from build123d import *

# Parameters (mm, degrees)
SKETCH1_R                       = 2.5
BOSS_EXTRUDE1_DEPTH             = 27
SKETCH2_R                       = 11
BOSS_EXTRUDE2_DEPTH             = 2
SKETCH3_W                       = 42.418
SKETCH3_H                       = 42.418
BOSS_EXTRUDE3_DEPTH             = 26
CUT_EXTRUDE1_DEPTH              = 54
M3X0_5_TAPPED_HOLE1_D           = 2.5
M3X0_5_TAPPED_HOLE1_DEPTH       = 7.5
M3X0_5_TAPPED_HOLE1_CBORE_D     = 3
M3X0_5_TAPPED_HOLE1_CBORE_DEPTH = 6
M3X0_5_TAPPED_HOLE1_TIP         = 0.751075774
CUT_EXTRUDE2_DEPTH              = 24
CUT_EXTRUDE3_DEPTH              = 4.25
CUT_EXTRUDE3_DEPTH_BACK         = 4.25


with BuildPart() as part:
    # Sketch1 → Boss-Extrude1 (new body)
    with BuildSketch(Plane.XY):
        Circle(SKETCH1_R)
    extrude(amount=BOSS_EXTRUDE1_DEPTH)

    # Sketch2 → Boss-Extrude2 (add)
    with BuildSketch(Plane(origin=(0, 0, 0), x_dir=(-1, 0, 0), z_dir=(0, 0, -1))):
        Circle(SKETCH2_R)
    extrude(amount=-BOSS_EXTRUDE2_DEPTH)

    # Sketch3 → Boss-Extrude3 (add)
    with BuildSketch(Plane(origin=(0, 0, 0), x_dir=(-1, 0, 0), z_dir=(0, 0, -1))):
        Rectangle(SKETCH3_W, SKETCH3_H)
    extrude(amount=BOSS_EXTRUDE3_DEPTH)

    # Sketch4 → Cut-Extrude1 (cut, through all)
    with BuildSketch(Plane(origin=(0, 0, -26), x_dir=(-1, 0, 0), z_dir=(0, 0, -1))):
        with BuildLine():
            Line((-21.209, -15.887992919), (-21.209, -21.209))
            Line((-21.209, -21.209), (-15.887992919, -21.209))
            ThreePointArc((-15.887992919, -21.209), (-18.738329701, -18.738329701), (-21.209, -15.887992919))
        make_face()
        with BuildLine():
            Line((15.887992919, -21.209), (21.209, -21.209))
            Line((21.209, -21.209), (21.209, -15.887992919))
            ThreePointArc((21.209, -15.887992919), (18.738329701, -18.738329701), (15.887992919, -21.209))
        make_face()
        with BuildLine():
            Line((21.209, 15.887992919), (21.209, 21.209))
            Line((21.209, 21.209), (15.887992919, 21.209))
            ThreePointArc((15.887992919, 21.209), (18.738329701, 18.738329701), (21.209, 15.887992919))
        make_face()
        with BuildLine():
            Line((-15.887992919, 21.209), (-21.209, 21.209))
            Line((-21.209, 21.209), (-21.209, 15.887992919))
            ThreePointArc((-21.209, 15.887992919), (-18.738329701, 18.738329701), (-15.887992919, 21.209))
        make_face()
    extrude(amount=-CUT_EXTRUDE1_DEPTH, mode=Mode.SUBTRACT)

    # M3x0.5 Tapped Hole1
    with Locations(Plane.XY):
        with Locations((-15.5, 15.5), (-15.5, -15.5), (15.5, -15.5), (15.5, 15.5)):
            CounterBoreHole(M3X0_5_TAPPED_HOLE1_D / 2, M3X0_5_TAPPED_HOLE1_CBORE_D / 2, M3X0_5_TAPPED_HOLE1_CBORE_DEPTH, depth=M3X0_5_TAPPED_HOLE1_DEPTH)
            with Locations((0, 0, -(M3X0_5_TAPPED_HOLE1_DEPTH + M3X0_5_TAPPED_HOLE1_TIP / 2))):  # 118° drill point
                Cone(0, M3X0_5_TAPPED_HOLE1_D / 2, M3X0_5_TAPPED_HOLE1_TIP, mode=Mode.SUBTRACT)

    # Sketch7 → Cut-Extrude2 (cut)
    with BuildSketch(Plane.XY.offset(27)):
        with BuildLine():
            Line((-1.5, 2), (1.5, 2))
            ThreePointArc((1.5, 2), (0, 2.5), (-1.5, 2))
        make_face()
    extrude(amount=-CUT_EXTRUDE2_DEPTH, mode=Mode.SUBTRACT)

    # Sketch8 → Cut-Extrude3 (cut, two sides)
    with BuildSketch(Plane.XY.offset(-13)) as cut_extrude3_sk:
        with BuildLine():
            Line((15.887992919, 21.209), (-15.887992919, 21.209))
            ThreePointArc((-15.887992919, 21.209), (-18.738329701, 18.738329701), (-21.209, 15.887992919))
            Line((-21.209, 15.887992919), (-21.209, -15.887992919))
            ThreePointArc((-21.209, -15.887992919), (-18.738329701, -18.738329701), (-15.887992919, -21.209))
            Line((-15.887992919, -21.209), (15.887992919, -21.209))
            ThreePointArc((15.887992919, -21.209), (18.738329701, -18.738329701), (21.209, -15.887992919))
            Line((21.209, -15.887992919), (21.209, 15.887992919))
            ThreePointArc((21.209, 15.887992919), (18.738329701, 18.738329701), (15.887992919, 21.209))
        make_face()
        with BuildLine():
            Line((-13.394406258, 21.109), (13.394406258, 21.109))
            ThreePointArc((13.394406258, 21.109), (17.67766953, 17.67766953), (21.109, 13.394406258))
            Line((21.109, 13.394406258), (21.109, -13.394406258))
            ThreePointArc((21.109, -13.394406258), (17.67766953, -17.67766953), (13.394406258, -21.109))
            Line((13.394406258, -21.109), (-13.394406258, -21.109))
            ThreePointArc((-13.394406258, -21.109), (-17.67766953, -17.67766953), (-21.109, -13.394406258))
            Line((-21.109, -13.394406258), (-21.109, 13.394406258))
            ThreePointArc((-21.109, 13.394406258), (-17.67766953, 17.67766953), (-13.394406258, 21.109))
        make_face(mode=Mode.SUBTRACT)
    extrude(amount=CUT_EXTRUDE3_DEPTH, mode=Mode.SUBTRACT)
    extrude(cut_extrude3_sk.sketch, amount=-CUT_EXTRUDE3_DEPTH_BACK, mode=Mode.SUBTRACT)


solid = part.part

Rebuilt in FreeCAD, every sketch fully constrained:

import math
import FreeCAD as App
import Part
import Sketcher

V = App.Vector


def add_polygon(sketch, points):
    """Adds a closed chain of lines whose ends are joined by coincident constraints."""
    first, n = sketch.GeometryCount, len(points)
    for a, b in zip(points, points[1:] + points[:1]):
        sketch.addGeometry(Part.LineSegment(App.Vector(*a, 0), App.Vector(*b, 0)), False)
    for i in range(n):
        sketch.addConstraint(Sketcher.Constraint("Coincident", first + i, 2, first + (i + 1) % n, 1))

doc = App.newDocument("Part")
body = doc.addObject("PartDesign::Body", "Body")

sketch1 = body.newObject("Sketcher::SketchObject", "Sketch")
sketch1.AttachmentSupport = (doc.getObject("XY_Plane"), [""])
sketch1.MapMode = "FlatFace"
sketch1.addGeometry(Part.Circle(V(0, 0, 0), V(0, 0, 1), 2.5), False)
sketch1.addConstraint(Sketcher.Constraint("Coincident", 0, 3, -1, 1))
sketch1.addConstraint(Sketcher.Constraint("Diameter", 0, 5.0))
pad1 = body.newObject("PartDesign::Pad", "Pad")
pad1.Profile = sketch1
pad1.Length = 27

sketch2 = body.newObject("Sketcher::SketchObject", "Sketch001")
sketch2.AttachmentSupport = (doc.getObject("XY_Plane"), [""])
sketch2.MapMode = "FlatFace"
sketch2.addGeometry(Part.Circle(V(0, 0, 0), V(0, 0, 1), 11), False)
sketch2.addConstraint(Sketcher.Constraint("Coincident", 0, 3, -1, 1))
sketch2.addConstraint(Sketcher.Constraint("Diameter", 0, 22.0))
pad2 = body.newObject("PartDesign::Pad", "Pad001")
pad2.Profile = sketch2
pad2.Length = 2

sketch3 = body.newObject("Sketcher::SketchObject", "Sketch002")
sketch3.AttachmentSupport = (doc.getObject("XY_Plane"), [""])
sketch3.MapMode = "FlatFace"
add_polygon(sketch3, [(21, 21), (21, -21), (-21, -21), (-21, 21)])
sketch3.addConstraint(Sketcher.Constraint("Vertical", 0))
sketch3.addConstraint(Sketcher.Constraint("Horizontal", 1))
sketch3.addConstraint(Sketcher.Constraint("Vertical", 2))
sketch3.addConstraint(Sketcher.Constraint("Horizontal", 3))
sketch3.addConstraint(Sketcher.Constraint("Symmetric", 0, 2, 2, 2, -1, 1))
sketch3.addConstraint(Sketcher.Constraint("Equal", 3, 0))
sketch3.addConstraint(Sketcher.Constraint("DistanceX", 1, 2, 1, 1, 42.418))
pad3 = body.newObject("PartDesign::Pad", "Pad002")
pad3.Profile = sketch3
pad3.Length = 26
pad3.Reversed = True

sketch4 = body.newObject("Sketcher::SketchObject", "Sketch003")
sketch4.AttachmentSupport = (doc.getObject("XY_Plane"), [""])
sketch4.MapMode = "FlatFace"
sketch4.AttachmentOffset = App.Placement(V(0, 0, -26), App.Rotation())
sketch4.addGeometry(Part.LineSegment(V(21, -16, 0), V(21, -21, 0)), False)
sketch4.addGeometry(Part.LineSegment(V(21, -21, 0), V(16, -21, 0)), False)
sketch4.addGeometry(Part.ArcOfCircle(Part.Circle(V(0, 0, 0), V(0, 0, 1), 27), math.radians(-53.16), math.radians(-36.84)), False)
sketch4.addGeometry(Part.LineSegment(V(-16, -21, 0), V(-21, -21, 0)), False)
sketch4.addGeometry(Part.LineSegment(V(-21, -21, 0), V(-21, -16, 0)), False)
sketch4.addGeometry(Part.ArcOfCircle(Part.Circle(V(0, 0, 0), V(0, 0, 1), 27), math.radians(-143.16), math.radians(-126.84)), False)
sketch4.addGeometry(Part.LineSegment(V(-21, 16, 0), V(-21, 21, 0)), False)
sketch4.addGeometry(Part.LineSegment(V(-21, 21, 0), V(-16, 21, 0)), False)
sketch4.addGeometry(Part.ArcOfCircle(Part.Circle(V(0, 0, 0), V(0, 0, 1), 27), math.radians(126.84), math.radians(143.16)), False)
sketch4.addGeometry(Part.LineSegment(V(16, 21, 0), V(21, 21, 0)), False)
sketch4.addGeometry(Part.LineSegment(V(21, 21, 0), V(21, 16, 0)), False)
sketch4.addGeometry(Part.ArcOfCircle(Part.Circle(V(0, 0, 0), V(0, 0, 1), 27), math.radians(36.84), math.radians(53.16)), False)
sketch4.addConstraint(Sketcher.Constraint("Coincident", 0, 2, 1, 1))
sketch4.addConstraint(Sketcher.Constraint("Coincident", 1, 2, 2, 1))
sketch4.addConstraint(Sketcher.Constraint("Coincident", 2, 2, 0, 1))
sketch4.addConstraint(Sketcher.Constraint("Coincident", 3, 2, 4, 1))
sketch4.addConstraint(Sketcher.Constraint("Coincident", 4, 2, 5, 1))
sketch4.addConstraint(Sketcher.Constraint("Coincident", 5, 2, 3, 1))
sketch4.addConstraint(Sketcher.Constraint("Coincident", 6, 2, 7, 1))
sketch4.addConstraint(Sketcher.Constraint("Coincident", 7, 2, 8, 1))
sketch4.addConstraint(Sketcher.Constraint("Coincident", 8, 2, 6, 1))
sketch4.addConstraint(Sketcher.Constraint("Coincident", 9, 2, 10, 1))
sketch4.addConstraint(Sketcher.Constraint("Coincident", 10, 2, 11, 1))
sketch4.addConstraint(Sketcher.Constraint("Coincident", 11, 2, 9, 1))
sketch4.addConstraint(Sketcher.Constraint("Vertical", 0))
sketch4.addConstraint(Sketcher.Constraint("Horizontal", 1))
sketch4.addConstraint(Sketcher.Constraint("Horizontal", 3))
sketch4.addConstraint(Sketcher.Constraint("Vertical", 4))
sketch4.addConstraint(Sketcher.Constraint("Vertical", 6))
sketch4.addConstraint(Sketcher.Constraint("Horizontal", 7))
sketch4.addConstraint(Sketcher.Constraint("Horizontal", 9))
sketch4.addConstraint(Sketcher.Constraint("Vertical", 10))
sketch4.addConstraint(Sketcher.Constraint("Coincident", 2, 3, -1, 1))
sketch4.addConstraint(Sketcher.Constraint("Coincident", 5, 3, -1, 1))
sketch4.addConstraint(Sketcher.Constraint("Coincident", 8, 3, -1, 1))
sketch4.addConstraint(Sketcher.Constraint("Coincident", 11, 3, -1, 1))
sketch4.addConstraint(Sketcher.Constraint("Equal", 2, 5))
sketch4.addConstraint(Sketcher.Constraint("Equal", 5, 8))
sketch4.addConstraint(Sketcher.Constraint("Equal", 8, 11))
sketch4.addConstraint(Sketcher.Constraint("Symmetric", 0, 2, 6, 2, -1, 1))
sketch4.addConstraint(Sketcher.Constraint("Symmetric", 3, 2, 9, 2, -1, 1))
sketch4.addConstraint(Sketcher.Constraint("Symmetric", 0, 2, 3, 2, -2))
sketch4.addConstraint(Sketcher.Constraint("Equal", 9, 0))
sketch4.addConstraint(Sketcher.Constraint("Radius", 2, 26.5))
sketch4.addConstraint(Sketcher.Constraint("DistanceX", -1, 1, 0, 2, 21.209))
pocket1 = body.newObject("PartDesign::Pocket", "Pocket")
pocket1.Profile = sketch4
pocket1.Type = "ThroughAll"
pocket1.Reversed = True

sketch5 = body.newObject("Sketcher::SketchObject", "Sketch004")
sketch5.AttachmentSupport = (doc.getObject("XY_Plane"), [""])
sketch5.MapMode = "FlatFace"
sketch5.addGeometry(Part.Circle(V(-15.5, 15.5, 0), V(0, 0, 1), 1.2), False)
sketch5.addGeometry(Part.Circle(V(-15.5, -15.5, 0), V(0, 0, 1), 1.2), False)
sketch5.addGeometry(Part.Circle(V(15.5, -15.5, 0), V(0, 0, 1), 1.2), False)
sketch5.addGeometry(Part.Circle(V(15.5, 15.5, 0), V(0, 0, 1), 1.2), False)
sketch5.addConstraint(Sketcher.Constraint("Equal", 0, 1))
sketch5.addConstraint(Sketcher.Constraint("Equal", 1, 2))
sketch5.addConstraint(Sketcher.Constraint("Equal", 2, 3))
sketch5.addConstraint(Sketcher.Constraint("Symmetric", 0, 3, 2, 3, -1, 1))
sketch5.addConstraint(Sketcher.Constraint("Symmetric", 1, 3, 3, 3, -1, 1))
sketch5.addConstraint(Sketcher.Constraint("Symmetric", 1, 3, 2, 3, -2))
sketch5.addConstraint(Sketcher.Constraint("Diameter", 0, 2.5))
sketch5.addConstraint(Sketcher.Constraint("DistanceY", 1, 3, 0, 3, 31.0))
sketch5.addConstraint(Sketcher.Constraint("DistanceX", 1, 3, 2, 3, 31.0))
doc.recompute()
hole = body.newObject("PartDesign::Hole", "Hole")
hole.Profile = sketch5
hole.ThreadType = "None"
hole.Diameter = 2.5
hole.DepthType = "Dimension"
hole.Depth = 7.5
hole.DrillPoint = "Angled"
hole.DrillPointAngle = 118
hole.HoleCutType = "Counterbore"
hole.HoleCutDiameter = 3
hole.HoleCutDepth = 6

sketch6 = body.newObject("Sketcher::SketchObject", "Sketch005")
sketch6.AttachmentSupport = (doc.getObject("XY_Plane"), [""])
sketch6.MapMode = "FlatFace"
sketch6.AttachmentOffset = App.Placement(V(0, 0, 27), App.Rotation())
sketch6.addGeometry(Part.LineSegment(V(-1.5, 2, 0), V(1.5, 2, 0)), False)
sketch6.addGeometry(Part.ArcOfCircle(Part.Circle(V(0, 0, 0), V(0, 0, 1), 2.5), math.radians(53), math.radians(127)), False)
sketch6.addConstraint(Sketcher.Constraint("Coincident", 0, 1, 1, 2))
sketch6.addConstraint(Sketcher.Constraint("Coincident", 1, 1, 0, 2))
sketch6.addConstraint(Sketcher.Constraint("Horizontal", 0))
sketch6.addConstraint(Sketcher.Constraint("Coincident", 1, 3, -1, 1))
sketch6.addConstraint(Sketcher.Constraint("Radius", 1, 2.5))
sketch6.addConstraint(Sketcher.Constraint("DistanceX", 0, 1, 0, 2, 3.0))
pocket2 = body.newObject("PartDesign::Pocket", "Pocket001")
pocket2.Profile = sketch6
pocket2.Length = 24

sketch7 = body.newObject("Sketcher::SketchObject", "Sketch006")
sketch7.AttachmentSupport = (doc.getObject("XY_Plane"), [""])
sketch7.MapMode = "FlatFace"
sketch7.AttachmentOffset = App.Placement(V(0, 0, -13), App.Rotation())
sketch7.addGeometry(Part.LineSegment(V(16, 21, 0), V(-16, 21, 0)), False)
sketch7.addGeometry(Part.ArcOfCircle(Part.Circle(V(0, 0, 0), V(0, 0, 1), 27), math.radians(126.84), math.radians(143.16)), False)
sketch7.addGeometry(Part.LineSegment(V(-21, 16, 0), V(-21, -16, 0)), False)
sketch7.addGeometry(Part.ArcOfCircle(Part.Circle(V(0, 0, 0), V(0, 0, 1), 27), math.radians(-143.16), math.radians(-126.84)), False)
sketch7.addGeometry(Part.LineSegment(V(-16, -21, 0), V(16, -21, 0)), False)
sketch7.addGeometry(Part.ArcOfCircle(Part.Circle(V(0, 0, 0), V(0, 0, 1), 27), math.radians(-53.16), math.radians(-36.84)), False)
sketch7.addGeometry(Part.LineSegment(V(21, -16, 0), V(21, 16, 0)), False)
sketch7.addGeometry(Part.ArcOfCircle(Part.Circle(V(0, 0, 0), V(0, 0, 1), 27), math.radians(36.84), math.radians(53.16)), False)
sketch7.addGeometry(Part.ArcOfCircle(Part.Circle(V(0, 0, 0), V(0, 0, 1), 25), math.radians(122), math.radians(148)), False)
sketch7.addGeometry(Part.LineSegment(V(-13, 21, 0), V(13, 21, 0)), False)
sketch7.addGeometry(Part.ArcOfCircle(Part.Circle(V(0, 0, 0), V(0, 0, 1), 25), math.radians(32), math.radians(58)), False)
sketch7.addGeometry(Part.LineSegment(V(21, 13, 0), V(21, -13, 0)), False)
sketch7.addGeometry(Part.ArcOfCircle(Part.Circle(V(0, 0, 0), V(0, 0, 1), 25), math.radians(-58), math.radians(-32)), False)
sketch7.addGeometry(Part.LineSegment(V(13, -21, 0), V(-13, -21, 0)), False)
sketch7.addGeometry(Part.ArcOfCircle(Part.Circle(V(0, 0, 0), V(0, 0, 1), 25), math.radians(-148), math.radians(-122)), False)
sketch7.addGeometry(Part.LineSegment(V(-21, -13, 0), V(-21, 13, 0)), False)
sketch7.addConstraint(Sketcher.Constraint("Coincident", 0, 2, 1, 1))
sketch7.addConstraint(Sketcher.Constraint("Coincident", 1, 2, 2, 1))
sketch7.addConstraint(Sketcher.Constraint("Coincident", 2, 2, 3, 1))
sketch7.addConstraint(Sketcher.Constraint("Coincident", 3, 2, 4, 1))
sketch7.addConstraint(Sketcher.Constraint("Coincident", 4, 2, 5, 1))
sketch7.addConstraint(Sketcher.Constraint("Coincident", 5, 2, 6, 1))
sketch7.addConstraint(Sketcher.Constraint("Coincident", 6, 2, 7, 1))
sketch7.addConstraint(Sketcher.Constraint("Coincident", 7, 2, 0, 1))
sketch7.addConstraint(Sketcher.Constraint("Coincident", 8, 1, 9, 1))
sketch7.addConstraint(Sketcher.Constraint("Coincident", 9, 2, 10, 2))
sketch7.addConstraint(Sketcher.Constraint("Coincident", 10, 1, 11, 1))
sketch7.addConstraint(Sketcher.Constraint("Coincident", 11, 2, 12, 2))
sketch7.addConstraint(Sketcher.Constraint("Coincident", 12, 1, 13, 1))
sketch7.addConstraint(Sketcher.Constraint("Coincident", 13, 2, 14, 2))
sketch7.addConstraint(Sketcher.Constraint("Coincident", 14, 1, 15, 1))
sketch7.addConstraint(Sketcher.Constraint("Coincident", 15, 2, 8, 2))
sketch7.addConstraint(Sketcher.Constraint("Horizontal", 0))
sketch7.addConstraint(Sketcher.Constraint("Vertical", 2))
sketch7.addConstraint(Sketcher.Constraint("Horizontal", 4))
sketch7.addConstraint(Sketcher.Constraint("Vertical", 6))
sketch7.addConstraint(Sketcher.Constraint("Horizontal", 9))
sketch7.addConstraint(Sketcher.Constraint("Vertical", 11))
sketch7.addConstraint(Sketcher.Constraint("Horizontal", 13))
sketch7.addConstraint(Sketcher.Constraint("Vertical", 15))
sketch7.addConstraint(Sketcher.Constraint("Coincident", 1, 3, -1, 1))
sketch7.addConstraint(Sketcher.Constraint("Coincident", 3, 3, -1, 1))
sketch7.addConstraint(Sketcher.Constraint("Coincident", 5, 3, -1, 1))
sketch7.addConstraint(Sketcher.Constraint("Coincident", 7, 3, -1, 1))
sketch7.addConstraint(Sketcher.Constraint("Coincident", 8, 3, -1, 1))
sketch7.addConstraint(Sketcher.Constraint("Coincident", 10, 3, -1, 1))
sketch7.addConstraint(Sketcher.Constraint("Coincident", 12, 3, -1, 1))
sketch7.addConstraint(Sketcher.Constraint("Coincident", 14, 3, -1, 1))
sketch7.addConstraint(Sketcher.Constraint("Equal", 1, 3))
sketch7.addConstraint(Sketcher.Constraint("Equal", 3, 5))
sketch7.addConstraint(Sketcher.Constraint("Equal", 5, 7))
sketch7.addConstraint(Sketcher.Constraint("Equal", 8, 10))
sketch7.addConstraint(Sketcher.Constraint("Equal", 10, 12))
sketch7.addConstraint(Sketcher.Constraint("Equal", 12, 14))
sketch7.addConstraint(Sketcher.Constraint("Horizontal", 2, 2, 5, 2))
sketch7.addConstraint(Sketcher.Constraint("Horizontal", 11, 2, 14, 1))
sketch7.addConstraint(Sketcher.Constraint("Vertical", 0, 2, 3, 2))
sketch7.addConstraint(Sketcher.Constraint("Vertical", 9, 2, 12, 1))
sketch7.addConstraint(Sketcher.Constraint("Equal", 4, 2))
sketch7.addConstraint(Sketcher.Constraint("Equal", 13, 11))
sketch7.addConstraint(Sketcher.Constraint("Radius", 8, 25.0))
sketch7.addConstraint(Sketcher.Constraint("Radius", 1, 26.5))
sketch7.addConstraint(Sketcher.Constraint("DistanceY", 8, 1, 0, 2, 0.1))
sketch7.addConstraint(Sketcher.Constraint("DistanceY", -1, 1, 0, 2, 21.209))
pocket3 = body.newObject("PartDesign::Pocket", "Pocket002")
pocket3.Profile = sketch7
pocket3.Type = "TwoLengths"
pocket3.Length = 4.25
pocket3.Length2 = 4.25
pocket3.Reversed = True

doc.recompute()
